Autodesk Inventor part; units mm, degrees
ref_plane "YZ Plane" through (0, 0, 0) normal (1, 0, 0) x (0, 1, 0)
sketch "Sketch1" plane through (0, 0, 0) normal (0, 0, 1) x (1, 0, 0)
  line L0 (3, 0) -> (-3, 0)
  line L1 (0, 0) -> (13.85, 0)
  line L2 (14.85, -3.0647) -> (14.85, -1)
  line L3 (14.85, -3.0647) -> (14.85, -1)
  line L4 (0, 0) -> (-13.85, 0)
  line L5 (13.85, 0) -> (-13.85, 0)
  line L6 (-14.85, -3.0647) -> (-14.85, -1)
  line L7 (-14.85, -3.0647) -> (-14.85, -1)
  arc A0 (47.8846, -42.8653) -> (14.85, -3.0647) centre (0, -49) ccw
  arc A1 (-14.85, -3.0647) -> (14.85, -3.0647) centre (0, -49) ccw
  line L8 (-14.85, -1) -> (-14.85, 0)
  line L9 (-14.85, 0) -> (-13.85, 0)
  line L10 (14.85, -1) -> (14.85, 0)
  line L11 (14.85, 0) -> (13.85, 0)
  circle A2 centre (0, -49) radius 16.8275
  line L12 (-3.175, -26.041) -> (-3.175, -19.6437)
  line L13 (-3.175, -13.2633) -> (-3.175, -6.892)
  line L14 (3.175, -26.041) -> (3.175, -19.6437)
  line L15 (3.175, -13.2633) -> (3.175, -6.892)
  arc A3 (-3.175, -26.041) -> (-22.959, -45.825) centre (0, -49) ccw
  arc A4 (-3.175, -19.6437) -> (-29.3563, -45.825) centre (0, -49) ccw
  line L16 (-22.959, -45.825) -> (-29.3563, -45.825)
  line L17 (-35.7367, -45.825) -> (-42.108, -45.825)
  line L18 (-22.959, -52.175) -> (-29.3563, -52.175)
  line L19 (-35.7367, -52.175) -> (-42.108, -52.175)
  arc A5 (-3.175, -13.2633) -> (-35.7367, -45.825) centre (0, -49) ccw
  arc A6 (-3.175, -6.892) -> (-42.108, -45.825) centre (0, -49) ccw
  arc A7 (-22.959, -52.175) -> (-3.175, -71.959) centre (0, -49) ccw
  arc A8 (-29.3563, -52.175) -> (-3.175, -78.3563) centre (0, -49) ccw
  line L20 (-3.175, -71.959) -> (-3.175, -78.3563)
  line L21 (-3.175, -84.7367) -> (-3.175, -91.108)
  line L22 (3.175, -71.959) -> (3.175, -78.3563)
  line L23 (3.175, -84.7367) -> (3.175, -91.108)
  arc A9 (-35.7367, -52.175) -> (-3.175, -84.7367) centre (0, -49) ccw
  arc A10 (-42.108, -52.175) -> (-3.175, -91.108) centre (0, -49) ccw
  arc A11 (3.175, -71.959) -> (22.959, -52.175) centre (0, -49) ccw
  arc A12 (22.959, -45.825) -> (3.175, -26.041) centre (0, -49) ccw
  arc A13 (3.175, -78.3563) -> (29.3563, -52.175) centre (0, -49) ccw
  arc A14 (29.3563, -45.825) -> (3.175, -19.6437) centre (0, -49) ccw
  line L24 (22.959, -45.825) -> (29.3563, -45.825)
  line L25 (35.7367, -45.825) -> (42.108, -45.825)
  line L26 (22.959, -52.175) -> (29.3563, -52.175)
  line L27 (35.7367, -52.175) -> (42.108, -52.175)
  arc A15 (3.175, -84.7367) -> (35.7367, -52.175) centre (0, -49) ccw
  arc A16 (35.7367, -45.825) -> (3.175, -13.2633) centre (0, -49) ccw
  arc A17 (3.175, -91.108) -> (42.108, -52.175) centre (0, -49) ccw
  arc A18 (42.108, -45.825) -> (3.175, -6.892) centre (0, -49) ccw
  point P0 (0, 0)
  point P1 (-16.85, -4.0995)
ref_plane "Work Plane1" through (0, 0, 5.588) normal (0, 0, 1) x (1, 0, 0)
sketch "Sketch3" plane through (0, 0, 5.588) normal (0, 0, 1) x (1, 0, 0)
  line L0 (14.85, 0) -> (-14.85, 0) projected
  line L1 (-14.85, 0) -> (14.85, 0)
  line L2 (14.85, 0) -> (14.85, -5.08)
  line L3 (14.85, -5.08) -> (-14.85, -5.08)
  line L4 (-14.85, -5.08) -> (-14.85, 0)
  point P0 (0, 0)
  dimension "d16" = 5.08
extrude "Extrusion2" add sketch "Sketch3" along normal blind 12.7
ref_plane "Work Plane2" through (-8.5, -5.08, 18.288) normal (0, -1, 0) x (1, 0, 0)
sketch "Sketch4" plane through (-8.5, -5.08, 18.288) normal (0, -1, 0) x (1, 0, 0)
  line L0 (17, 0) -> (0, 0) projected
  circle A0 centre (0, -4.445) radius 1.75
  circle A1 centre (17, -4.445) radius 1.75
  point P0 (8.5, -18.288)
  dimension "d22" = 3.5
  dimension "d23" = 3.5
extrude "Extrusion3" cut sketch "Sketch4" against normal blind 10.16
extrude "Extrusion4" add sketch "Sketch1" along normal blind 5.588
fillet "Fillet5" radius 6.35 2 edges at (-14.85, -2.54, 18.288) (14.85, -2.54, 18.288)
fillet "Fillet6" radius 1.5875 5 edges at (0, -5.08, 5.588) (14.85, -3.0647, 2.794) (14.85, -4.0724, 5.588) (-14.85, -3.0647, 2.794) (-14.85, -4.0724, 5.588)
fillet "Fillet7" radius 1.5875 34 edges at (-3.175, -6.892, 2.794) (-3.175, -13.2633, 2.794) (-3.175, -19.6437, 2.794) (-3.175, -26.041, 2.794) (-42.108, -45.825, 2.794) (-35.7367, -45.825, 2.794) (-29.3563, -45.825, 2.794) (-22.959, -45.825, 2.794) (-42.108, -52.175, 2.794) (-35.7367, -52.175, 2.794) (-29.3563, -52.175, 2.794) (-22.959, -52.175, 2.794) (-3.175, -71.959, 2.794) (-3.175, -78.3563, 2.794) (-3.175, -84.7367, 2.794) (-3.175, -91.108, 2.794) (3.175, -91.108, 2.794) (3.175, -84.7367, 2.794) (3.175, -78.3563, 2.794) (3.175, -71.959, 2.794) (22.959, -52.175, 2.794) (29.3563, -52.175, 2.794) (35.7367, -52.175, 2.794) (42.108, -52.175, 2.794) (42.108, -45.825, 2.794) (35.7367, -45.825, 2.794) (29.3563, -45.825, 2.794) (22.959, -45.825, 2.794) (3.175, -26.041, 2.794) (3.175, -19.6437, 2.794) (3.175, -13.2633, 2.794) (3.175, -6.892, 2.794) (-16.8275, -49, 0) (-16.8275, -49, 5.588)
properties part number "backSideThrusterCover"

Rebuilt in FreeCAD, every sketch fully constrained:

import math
import FreeCAD as App
import Part
import Sketcher

V = App.Vector
Q = App.Units.Quantity


def edges_at(feature, points):
    """Names of the edges that pass closest to the given points."""
    edges = feature.Shape.Edges
    near = lambda p: min(range(len(edges)), key=lambda i: edges[i].distToShape(Part.Vertex(*p))[0])
    return sorted({f"Edge{near(p) + 1}" for p in points})

doc = App.newDocument("Part")
body = doc.addObject("PartDesign::Body", "Body")

sketch1 = body.newObject("Sketcher::SketchObject", "Sketch")
sketch1.AttachmentSupport = (doc.getObject("XY_Plane"), [""])
sketch1.MapMode = "FlatFace"
sketch1.AttachmentOffset = App.Placement(V(0, 0, 0.22 * 25.4), App.Rotation())
sketch1.addGeometry(Part.LineSegment(V(14.85, -5.08, 0), V(14.85, 0, 0)), False)
sketch1.addGeometry(Part.LineSegment(V(14.85, 0, 0), V(-14.85, 0, 0)), False)
sketch1.addGeometry(Part.LineSegment(V(-14.85, 0, 0), V(-14.85, -5.08, 0)), False)
sketch1.addGeometry(Part.LineSegment(V(-14.85, -5.08, 0), V(14.85, -5.08, 0)), False)
sketch1.addConstraint(Sketcher.Constraint("Coincident", 0, 2, 1, 1))
sketch1.addConstraint(Sketcher.Constraint("Coincident", 1, 2, 2, 1))
sketch1.addConstraint(Sketcher.Constraint("Coincident", 2, 2, 3, 1))
sketch1.addConstraint(Sketcher.Constraint("Coincident", 3, 2, 0, 1))
sketch1.addConstraint(Sketcher.Constraint("Vertical", 0))
sketch1.addConstraint(Sketcher.Constraint("Horizontal", 1))
sketch1.addConstraint(Sketcher.Constraint("Vertical", 2))
sketch1.addConstraint(Sketcher.Constraint("Horizontal", 3))
sketch1.addConstraint(Sketcher.Constraint("Symmetric", 0, 2, 1, 2, -1, 1))
sketch1.addConstraint(Sketcher.Constraint("DistanceY", 0, 1, 0, 2, Q("0.2 in")))
sketch1.addConstraint(Sketcher.Constraint("DistanceX", 1, 2, 1, 1, Q("1.1693 in")))
pad1 = body.newObject("PartDesign::Pad", "Pad")
pad1.Profile = sketch1
pad1.Length = Q("0.5 in")

sketch2 = body.newObject("Sketcher::SketchObject", "Sketch001")
sketch2.AttachmentSupport = (doc.getObject("XZ_Plane"), [""])
sketch2.MapMode = "FlatFace"
sketch2.AttachmentOffset = App.Placement(V(0, 0, 0.2 * 25.4), App.Rotation())
sketch2.addGeometry(Part.Circle(V(-8.5, 13.843, 0), V(0, 0, 1), 1.75), False)
sketch2.addGeometry(Part.Circle(V(8.5, 13.843, 0), V(0, 0, 1), 1.75), False)
sketch2.addConstraint(Sketcher.Constraint("Equal", 0, 1))
sketch2.addConstraint(Sketcher.Constraint("Symmetric", 0, 3, 1, 3, -2))
sketch2.addConstraint(Sketcher.Constraint("Diameter", 0, Q("0.1378 in")))
sketch2.addConstraint(Sketcher.Constraint("DistanceY", -1, 1, 0, 3, Q("0.545 in")))
sketch2.addConstraint(Sketcher.Constraint("DistanceX", 0, 3, 1, 3, Q("0.6693 in")))
pocket1 = body.newObject("PartDesign::Pocket", "Pocket")
pocket1.Profile = sketch2
pocket1.Length = Q("0.4 in")

sketch3 = body.newObject("Sketcher::SketchObject", "Sketch002")
sketch3.AttachmentSupport = (doc.getObject("XY_Plane"), [""])
sketch3.MapMode = "FlatFace"
sketch3.addGeometry(Part.LineSegment(V(14.85, 0, 0), V(-14.85, 0, 0)), False)
sketch3.addGeometry(Part.LineSegment(V(-14.85, 0, 0), V(-14.85, -3.0647, 0)), False)
sketch3.addGeometry(Part.ArcOfCircle(Part.Circle(V(0, -49, 0), V(0, 0, 1), 48.276022), math.radians(107.915024), math.radians(367.300637)), False)
sketch3.addGeometry(Part.ArcOfCircle(Part.Circle(V(0, -49, 0), V(0, 0, 1), 48.276022), math.radians(7.300637), math.radians(72.084976)), False)
sketch3.addGeometry(Part.LineSegment(V(14.85, -3.0647, 0), V(14.85, 0, 0)), False)
sketch3.addGeometry(Part.LineSegment(V(-42.108, -52.175, 0), V(-35.7367, -52.175, 0)), False)
sketch3.addGeometry(Part.ArcOfCircle(Part.Circle(V(0, -49, 0), V(0, 0, 1), 35.877463), math.radians(-174.92293), math.radians(-95.07707)), False)
sketch3.addGeometry(Part.LineSegment(V(-3.175, -84.7367, 0), V(-3.175, -91.108, 0)), False)
sketch3.addGeometry(Part.ArcOfCircle(Part.Circle(V(0, -49, 0), V(0, 0, 1), 42.22753), math.radians(-175.68798), math.radians(-94.31202)), False)
sketch3.addGeometry(Part.LineSegment(V(-29.3563, -52.175, 0), V(-22.959, -52.175, 0)), False)
sketch3.addGeometry(Part.ArcOfCircle(Part.Circle(V(0, -49, 0), V(0, 0, 1), 23.177496), math.radians(-172.126505), math.radians(-97.873495)), False)
sketch3.addGeometry(Part.LineSegment(V(-3.175, -71.959, 0), V(-3.175, -78.3563, 0)), False)
sketch3.addGeometry(Part.ArcOfCircle(Part.Circle(V(0, -49, 0), V(0, 0, 1), 29.527495), math.radians(-173.827228), math.radians(-96.172772)), False)
sketch3.addGeometry(Part.LineSegment(V(3.175, -91.108, 0), V(3.175, -84.7367, 0)), False)
sketch3.addGeometry(Part.ArcOfCircle(Part.Circle(V(0, -49, 0), V(0, 0, 1), 35.877463), math.radians(-84.92293), math.radians(-5.07707)), False)
sketch3.addGeometry(Part.LineSegment(V(35.7367, -52.175, 0), V(42.108, -52.175, 0)), False)
sketch3.addGeometry(Part.ArcOfCircle(Part.Circle(V(0, -49, 0), V(0, 0, 1), 42.22753), math.radians(-85.68798), math.radians(-4.31202)), False)
sketch3.addGeometry(Part.LineSegment(V(3.175, -78.3563, 0), V(3.175, -71.959, 0)), False)
sketch3.addGeometry(Part.ArcOfCircle(Part.Circle(V(0, -49, 0), V(0, 0, 1), 23.177496), math.radians(-82.126505), math.radians(-7.873495)), False)
sketch3.addGeometry(Part.LineSegment(V(22.959, -52.175, 0), V(29.3563, -52.175, 0)), False)
sketch3.addGeometry(Part.ArcOfCircle(Part.Circle(V(0, -49, 0), V(0, 0, 1), 29.527495), math.radians(-83.827228), math.radians(-6.172772)), False)
sketch3.addGeometry(Part.Circle(V(0, -49, 0), V(0, 0, 1), 16.8275), False)
sketch3.addGeometry(Part.LineSegment(V(-3.175, -19.6437, 0), V(-3.175, -26.041, 0)), False)
sketch3.addGeometry(Part.ArcOfCircle(Part.Circle(V(0, -49, 0), V(0, 0, 1), 23.177496), math.radians(97.873495), math.radians(172.126505)), False)
sketch3.addGeometry(Part.LineSegment(V(-22.959, -45.825, 0), V(-29.3563, -45.825, 0)), False)
sketch3.addGeometry(Part.ArcOfCircle(Part.Circle(V(0, -49, 0), V(0, 0, 1), 29.527495), math.radians(96.172772), math.radians(173.827228)), False)
sketch3.addGeometry(Part.LineSegment(V(-3.175, -6.892, 0), V(-3.175, -13.2633, 0)), False)
sketch3.addGeometry(Part.ArcOfCircle(Part.Circle(V(0, -49, 0), V(0, 0, 1), 35.877463), math.radians(95.07707), math.radians(174.92293)), False)
sketch3.addGeometry(Part.LineSegment(V(-35.7367, -45.825, 0), V(-42.108, -45.825, 0)), False)
sketch3.addGeometry(Part.ArcOfCircle(Part.Circle(V(0, -49, 0), V(0, 0, 1), 42.22753), math.radians(94.31202), math.radians(175.68798)), False)
sketch3.addGeometry(Part.ArcOfCircle(Part.Circle(V(0, -49, 0), V(0, 0, 1), 23.177496), math.radians(7.873495), math.radians(82.126505)), False)
sketch3.addGeometry(Part.LineSegment(V(3.175, -26.041, 0), V(3.175, -19.6437, 0)), False)
sketch3.addGeometry(Part.ArcOfCircle(Part.Circle(V(0, -49, 0), V(0, 0, 1), 29.527495), math.radians(6.172772), math.radians(83.827228)), False)
sketch3.addGeometry(Part.LineSegment(V(29.3563, -45.825, 0), V(22.959, -45.825, 0)), False)
sketch3.addGeometry(Part.ArcOfCircle(Part.Circle(V(0, -49, 0), V(0, 0, 1), 35.877463), math.radians(5.07707), math.radians(84.92293)), False)
sketch3.addGeometry(Part.LineSegment(V(3.175, -13.2633, 0), V(3.175, -6.892, 0)), False)
sketch3.addGeometry(Part.ArcOfCircle(Part.Circle(V(0, -49, 0), V(0, 0, 1), 42.22753), math.radians(4.31202), math.radians(85.68798)), False)
sketch3.addGeometry(Part.LineSegment(V(42.108, -45.825, 0), V(35.7367, -45.825, 0)), False)
sketch3.addConstraint(Sketcher.Constraint("Coincident", 0, 2, 1, 1))
sketch3.addConstraint(Sketcher.Constraint("Coincident", 1, 2, 2, 1))
sketch3.addConstraint(Sketcher.Constraint("Tangent", 2, 2, 3, 1))
sketch3.addConstraint(Sketcher.Constraint("Coincident", 3, 2, 4, 1))
sketch3.addConstraint(Sketcher.Constraint("Coincident", 4, 2, 0, 1))
sketch3.addConstraint(Sketcher.Constraint("Coincident", 5, 2, 6, 1))
sketch3.addConstraint(Sketcher.Constraint("Coincident", 6, 2, 7, 1))
sketch3.addConstraint(Sketcher.Constraint("Coincident", 7, 2, 8, 2))
sketch3.addConstraint(Sketcher.Constraint("Coincident", 8, 1, 5, 1))
sketch3.addConstraint(Sketcher.Constraint("Coincident", 9, 2, 10, 1))
sketch3.addConstraint(Sketcher.Constraint("Coincident", 10, 2, 11, 1))
sketch3.addConstraint(Sketcher.Constraint("Coincident", 11, 2, 12, 2))
sketch3.addConstraint(Sketcher.Constraint("Coincident", 12, 1, 9, 1))
sketch3.addConstraint(Sketcher.Constraint("Coincident", 13, 2, 14, 1))
sketch3.addConstraint(Sketcher.Constraint("Coincident", 14, 2, 15, 1))
sketch3.addConstraint(Sketcher.Constraint("Coincident", 15, 2, 16, 2))
sketch3.addConstraint(Sketcher.Constraint("Coincident", 16, 1, 13, 1))
sketch3.addConstraint(Sketcher.Constraint("Coincident", 17, 2, 18, 1))
sketch3.addConstraint(Sketcher.Constraint("Coincident", 18, 2, 19, 1))
sketch3.addConstraint(Sketcher.Constraint("Coincident", 19, 2, 20, 2))
sketch3.addConstraint(Sketcher.Constraint("Coincident", 20, 1, 17, 1))
sketch3.addConstraint(Sketcher.Constraint("Coincident", 22, 2, 23, 1))
sketch3.addConstraint(Sketcher.Constraint("Coincident", 23, 2, 24, 1))
sketch3.addConstraint(Sketcher.Constraint("Coincident", 24, 2, 25, 2))
sketch3.addConstraint(Sketcher.Constraint("Coincident", 25, 1, 22, 1))
sketch3.addConstraint(Sketcher.Constraint("Coincident", 26, 2, 27, 1))
sketch3.addConstraint(Sketcher.Constraint("Coincident", 27, 2, 28, 1))
sketch3.addConstraint(Sketcher.Constraint("Coincident", 28, 2, 29, 2))
sketch3.addConstraint(Sketcher.Constraint("Coincident", 29, 1, 26, 1))
sketch3.addConstraint(Sketcher.Constraint("Coincident", 30, 2, 31, 1))
sketch3.addConstraint(Sketcher.Constraint("Coincident", 31, 2, 32, 2))
sketch3.addConstraint(Sketcher.Constraint("Coincident", 32, 1, 33, 1))
sketch3.addConstraint(Sketcher.Constraint("Coincident", 33, 2, 30, 1))
sketch3.addConstraint(Sketcher.Constraint("Coincident", 34, 2, 35, 1))
sketch3.addConstraint(Sketcher.Constraint("Coincident", 35, 2, 36, 2))
sketch3.addConstraint(Sketcher.Constraint("Coincident", 36, 1, 37, 1))
sketch3.addConstraint(Sketcher.Constraint("Coincident", 37, 2, 34, 1))
sketch3.addConstraint(Sketcher.Constraint("Horizontal", 0))
sketch3.addConstraint(Sketcher.Constraint("Vertical", 1))
sketch3.addConstraint(Sketcher.Constraint("Vertical", 4))
sketch3.addConstraint(Sketcher.Constraint("Horizontal", 5))
sketch3.addConstraint(Sketcher.Constraint("Vertical", 7))
sketch3.addConstraint(Sketcher.Constraint("Horizontal", 9))
sketch3.addConstraint(Sketcher.Constraint("Vertical", 11))
sketch3.addConstraint(Sketcher.Constraint("Vertical", 13))
sketch3.addConstraint(Sketcher.Constraint("Horizontal", 15))
sketch3.addConstraint(Sketcher.Constraint("Vertical", 17))
sketch3.addConstraint(Sketcher.Constraint("Horizontal", 19))
sketch3.addConstraint(Sketcher.Constraint("Vertical", 22))
sketch3.addConstraint(Sketcher.Constraint("Horizontal", 24))
sketch3.addConstraint(Sketcher.Constraint("Vertical", 26))
sketch3.addConstraint(Sketcher.Constraint("Horizontal", 28))
sketch3.addConstraint(Sketcher.Constraint("Vertical", 31))
sketch3.addConstraint(Sketcher.Constraint("Horizontal", 33))
sketch3.addConstraint(Sketcher.Constraint("Vertical", 35))
sketch3.addConstraint(Sketcher.Constraint("Horizontal", 37))
sketch3.addConstraint(Sketcher.Constraint("Coincident", 6, 3, 2, 3))
sketch3.addConstraint(Sketcher.Constraint("Coincident", 8, 3, 2, 3))
sketch3.addConstraint(Sketcher.Constraint("Coincident", 10, 3, 2, 3))
sketch3.addConstraint(Sketcher.Constraint("Coincident", 12, 3, 2, 3))
sketch3.addConstraint(Sketcher.Constraint("Coincident", 14, 3, 2, 3))
sketch3.addConstraint(Sketcher.Constraint("Coincident", 16, 3, 2, 3))
sketch3.addConstraint(Sketcher.Constraint("Coincident", 18, 3, 2, 3))
sketch3.addConstraint(Sketcher.Constraint("Coincident", 20, 3, 2, 3))
sketch3.addConstraint(Sketcher.Constraint("Coincident", 21, 3, 2, 3))
sketch3.addConstraint(Sketcher.Constraint("Coincident", 23, 3, 2, 3))
sketch3.addConstraint(Sketcher.Constraint("Coincident", 25, 3, 2, 3))
sketch3.addConstraint(Sketcher.Constraint("Coincident", 27, 3, 2, 3))
sketch3.addConstraint(Sketcher.Constraint("Coincident", 29, 3, 2, 3))
sketch3.addConstraint(Sketcher.Constraint("Coincident", 30, 3, 2, 3))
sketch3.addConstraint(Sketcher.Constraint("Coincident", 32, 3, 2, 3))
sketch3.addConstraint(Sketcher.Constraint("Coincident", 34, 3, 2, 3))
sketch3.addConstraint(Sketcher.Constraint("Coincident", 36, 3, 2, 3))
sketch3.addConstraint(Sketcher.Constraint("Equal", 2, 3))
sketch3.addConstraint(Sketcher.Constraint("Equal", 6, 14))
sketch3.addConstraint(Sketcher.Constraint("Equal", 8, 16))
sketch3.addConstraint(Sketcher.Constraint("Equal", 10, 18))
sketch3.addConstraint(Sketcher.Constraint("Equal", 12, 20))
sketch3.addConstraint(Sketcher.Constraint("Equal", 18, 23))
sketch3.addConstraint(Sketcher.Constraint("Equal", 20, 25))
sketch3.addConstraint(Sketcher.Constraint("Equal", 14, 27))
sketch3.addConstraint(Sketcher.Constraint("Equal", 16, 29))
sketch3.addConstraint(Sketcher.Constraint("Equal", 23, 30))
sketch3.addConstraint(Sketcher.Constraint("Equal", 25, 32))
sketch3.addConstraint(Sketcher.Constraint("Equal", 27, 34))
sketch3.addConstraint(Sketcher.Constraint("Equal", 29, 36))
sketch3.addConstraint(Sketcher.Constraint("Symmetric", 0, 2, 4, 2, -1, 1))
sketch3.addConstraint(Sketcher.Constraint("Symmetric", 6, 2, 13, 2, -2))
sketch3.addConstraint(Sketcher.Constraint("Horizontal", 8, 1, 9, 2))
sketch3.addConstraint(Sketcher.Constraint("Horizontal", 12, 1, 14, 2))
sketch3.addConstraint(Sketcher.Constraint("Horizontal", 10, 2, 17, 2))
sketch3.addConstraint(Sketcher.Constraint("Horizontal", 15, 2, 18, 2))
sketch3.addConstraint(Sketcher.Constraint("Horizontal", 24, 2, 27, 2))
sketch3.addConstraint(Sketcher.Constraint("Horizontal", 22, 2, 30, 2))
sketch3.addConstraint(Sketcher.Constraint("Horizontal", 28, 2, 32, 1))
sketch3.addConstraint(Sketcher.Constraint("Horizontal", 26, 2, 34, 2))
sketch3.addConstraint(Sketcher.Constraint("Horizontal", 33, 2, 36, 1))
sketch3.addConstraint(Sketcher.Constraint("Vertical", 7, 2, 10, 2))
sketch3.addConstraint(Sketcher.Constraint("Vertical", 11, 2, 22, 2))
sketch3.addConstraint(Sketcher.Constraint("Vertical", 9, 2, 23, 2))
sketch3.addConstraint(Sketcher.Constraint("Vertical", 25, 1, 26, 2))
sketch3.addConstraint(Sketcher.Constraint("Equal", 37, 7))
sketch3.addConstraint(Sketcher.Constraint("Diameter", 21, Q("1.325 in")))
sketch3.addConstraint(Sketcher.Constraint("Radius", 6, Q("1.4125 in")))
sketch3.addConstraint(Sketcher.Constraint("Radius", 8, Q("1.6625 in")))
sketch3.addConstraint(Sketcher.Constraint("Radius", 10, Q("0.9125 in")))
sketch3.addConstraint(Sketcher.Constraint("Radius", 12, Q("1.1625 in")))
sketch3.addConstraint(Sketcher.Constraint("Radius", 2, 48.276))
sketch3.addConstraint(Sketcher.Constraint("DistanceX", 6, 2, 13, 2, Q("0.25 in")))
sketch3.addConstraint(Sketcher.Constraint("DistanceX", 0, 2, 0, 1, Q("1.1693 in")))
sketch3.addConstraint(Sketcher.Constraint("DistanceY", 1, 2, 1, 1, 3.0647))
sketch3.addConstraint(Sketcher.Constraint("DistanceY", 2, 2, -1, 1, Q("1.6876 in")))
pad2 = body.newObject("PartDesign::Pad", "Pad001")
pad2.Profile = sketch3
pad2.Length = Q("0.22 in")
doc.recompute()

fillet = body.newObject("PartDesign::Fillet", "Fillet")
fillet.Base = (pad2, edges_at(pad2, [(-14.85, -2.54, 18.288), (14.85, -2.54, 18.288)]))
fillet.Radius = Q("0.25 in")
doc.recompute()

fillet2 = body.newObject("PartDesign::Fillet", "Fillet001")
fillet2.Base = (fillet, edges_at(fillet, [
    (0, -5.08, 5.588),
    (14.85, -3.065, 2.794),
    (14.85, -4.072, 5.588),
    (-14.85, -3.065, 2.794),
    (-14.85, -4.072, 5.588),
]))
fillet2.Radius = Q("0.0625 in")
doc.recompute()

fillet3 = body.newObject("PartDesign::Fillet", "Fillet002")
fillet3.Base = (fillet2, edges_at(fillet2, [
    (-3.175, -6.892, 2.794),
    (-3.175, -13.263, 2.794),
    (-3.175, -19.644, 2.794),
    (-3.175, -26.041, 2.794),
    (-42.108, -45.825, 2.794),
    (-35.737, -45.825, 2.794),
    (-29.356, -45.825, 2.794),
    (-22.959, -45.825, 2.794),
    (-42.108, -52.175, 2.794),
    (-35.737, -52.175, 2.794),
    (-29.356, -52.175, 2.794),
    (-22.959, -52.175, 2.794),
    (-3.175, -71.959, 2.794),
    (-3.175, -78.356, 2.794),
    (-3.175, -84.737, 2.794),
    (-3.175, -91.108, 2.794),
    (3.175, -91.108, 2.794),
    (3.175, -84.737, 2.794),
    (3.175, -78.356, 2.794),
    (3.175, -71.959, 2.794),
    (22.959, -52.175, 2.794),
    (29.356, -52.175, 2.794),
    (35.737, -52.175, 2.794),
    (42.108, -52.175, 2.794),
    (42.108, -45.825, 2.794),
    (35.737, -45.825, 2.794),
    (29.356, -45.825, 2.794),
    (22.959, -45.825, 2.794),
    (3.175, -26.041, 2.794),
    (3.175, -19.644, 2.794),
    (3.175, -13.263, 2.794),
    (3.175, -6.892, 2.794),
    (-16.828, -49, 0),
    (-16.828, -49, 5.588),
]))
fillet3.Radius = Q("0.0625 in")

doc.recompute()
